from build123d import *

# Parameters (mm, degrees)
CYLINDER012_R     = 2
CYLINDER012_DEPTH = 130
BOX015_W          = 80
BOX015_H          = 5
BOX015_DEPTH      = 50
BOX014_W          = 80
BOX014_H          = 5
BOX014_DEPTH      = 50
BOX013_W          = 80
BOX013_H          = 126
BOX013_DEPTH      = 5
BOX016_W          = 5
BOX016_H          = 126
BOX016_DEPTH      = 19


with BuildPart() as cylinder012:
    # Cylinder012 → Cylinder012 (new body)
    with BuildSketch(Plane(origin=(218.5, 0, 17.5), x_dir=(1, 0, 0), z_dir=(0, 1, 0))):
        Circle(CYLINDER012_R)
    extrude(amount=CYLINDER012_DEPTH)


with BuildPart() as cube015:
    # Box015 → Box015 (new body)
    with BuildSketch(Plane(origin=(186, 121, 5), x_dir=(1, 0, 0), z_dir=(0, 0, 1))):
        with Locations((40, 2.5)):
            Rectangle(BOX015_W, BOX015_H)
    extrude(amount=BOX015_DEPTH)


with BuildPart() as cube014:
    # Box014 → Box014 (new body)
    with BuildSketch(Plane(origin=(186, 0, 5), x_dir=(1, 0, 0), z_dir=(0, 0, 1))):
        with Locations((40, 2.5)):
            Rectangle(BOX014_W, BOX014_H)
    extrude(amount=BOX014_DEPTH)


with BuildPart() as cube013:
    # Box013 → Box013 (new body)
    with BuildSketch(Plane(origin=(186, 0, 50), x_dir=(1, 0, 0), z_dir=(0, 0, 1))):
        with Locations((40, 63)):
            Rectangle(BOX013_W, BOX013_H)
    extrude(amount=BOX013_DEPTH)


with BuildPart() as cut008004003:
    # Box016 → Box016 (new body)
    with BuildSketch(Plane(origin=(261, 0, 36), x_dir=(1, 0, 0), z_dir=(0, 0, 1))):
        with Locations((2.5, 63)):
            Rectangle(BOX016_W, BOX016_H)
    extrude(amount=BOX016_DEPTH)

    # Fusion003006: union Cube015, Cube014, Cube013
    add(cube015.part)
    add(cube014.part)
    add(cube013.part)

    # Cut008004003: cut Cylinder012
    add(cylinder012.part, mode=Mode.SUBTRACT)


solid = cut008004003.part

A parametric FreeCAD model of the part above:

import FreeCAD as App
import Part
import Sketcher
Q = App.Units.Quantity


def add_polygon(sketch, points):
    """Adds a closed chain of lines whose ends are joined by coincident constraints."""
    first, n = sketch.GeometryCount, len(points)
    for a, b in zip(points, points[1:] + points[:1]):
        sketch.addGeometry(Part.LineSegment(App.Vector(*a, 0), App.Vector(*b, 0)), False)
    for i in range(n):
        sketch.addConstraint(Sketcher.Constraint("Coincident", first + i, 2, first + (i + 1) % n, 1))

doc = App.newDocument("Part")
body = doc.addObject("PartDesign::Body", "Body")

sketch1 = body.newObject("Sketcher::SketchObject", "Sketch")
sketch1.AttachmentSupport = (doc.getObject("XZ_Plane"), [""])
sketch1.MapMode = "FlatFace"
sketch1.addGeometry(Part.Circle(App.Vector(218.5, 17.5, 0), App.Vector(0, 0, 1), 2), False)
sketch1.addConstraint(Sketcher.Constraint("Diameter", 0, Q("4 mm")))
sketch1.addConstraint(Sketcher.Constraint("DistanceX", -1, 1, 0, 3, Q("218.5 mm")))
sketch1.addConstraint(Sketcher.Constraint("DistanceY", -1, 1, 0, 3, Q("17.5 mm")))
pad1 = body.newObject("PartDesign::Pad", "Pad")
pad1.Profile = sketch1
pad1.Length = 130
pad1.Reversed = True
body2 = doc.addObject("PartDesign::Body", "Body001")

sketch2 = body2.newObject("Sketcher::SketchObject", "Sketch001")
sketch2.AttachmentSupport = (doc.getObject("XY_Plane001"), [""])
sketch2.MapMode = "FlatFace"
sketch2.AttachmentOffset = App.Placement(App.Vector(0, 0, 5), App.Rotation())
add_polygon(sketch2, [(186, 126), (186, 121), (266, 121), (266, 126)])
sketch2.addConstraint(Sketcher.Constraint("Vertical", 0))
sketch2.addConstraint(Sketcher.Constraint("Horizontal", 1))
sketch2.addConstraint(Sketcher.Constraint("Vertical", 2))
sketch2.addConstraint(Sketcher.Constraint("Horizontal", 3))
sketch2.addConstraint(Sketcher.Constraint("DistanceX", 1, 1, 1, 2, Q("80 mm")))
sketch2.addConstraint(Sketcher.Constraint("DistanceY", 0, 2, 0, 1, Q("5 mm")))
sketch2.addConstraint(Sketcher.Constraint("DistanceX", -1, 1, 0, 2, Q("186 mm")))
sketch2.addConstraint(Sketcher.Constraint("DistanceY", -1, 1, 0, 2, Q("121 mm")))
pad2 = body2.newObject("PartDesign::Pad", "Pad001")
pad2.Profile = sketch2
pad2.Length = 50
body3 = doc.addObject("PartDesign::Body", "Body002")

sketch3 = body3.newObject("Sketcher::SketchObject", "Sketch002")
sketch3.AttachmentSupport = (doc.getObject("XY_Plane002"), [""])
sketch3.MapMode = "FlatFace"
sketch3.AttachmentOffset = App.Placement(App.Vector(0, 0, 5), App.Rotation())
add_polygon(sketch3, [(186, 5), (186, 0), (266, 0), (266, 5)])
sketch3.addConstraint(Sketcher.Constraint("Vertical", 0))
sketch3.addConstraint(Sketcher.Constraint("Horizontal", 1))
sketch3.addConstraint(Sketcher.Constraint("Vertical", 2))
sketch3.addConstraint(Sketcher.Constraint("Horizontal", 3))
sketch3.addConstraint(Sketcher.Constraint("PointOnObject", 0, 2, -1))
sketch3.addConstraint(Sketcher.Constraint("DistanceX", 1, 1, 1, 2, Q("80 mm")))
sketch3.addConstraint(Sketcher.Constraint("DistanceY", 0, 2, 0, 1, Q("5 mm")))
sketch3.addConstraint(Sketcher.Constraint("DistanceX", -1, 1, 0, 2, Q("186 mm")))
pad3 = body3.newObject("PartDesign::Pad", "Pad002")
pad3.Profile = sketch3
pad3.Length = 50
body4 = doc.addObject("PartDesign::Body", "Body003")

sketch4 = body4.newObject("Sketcher::SketchObject", "Sketch003")
sketch4.AttachmentSupport = (doc.getObject("XY_Plane003"), [""])
sketch4.MapMode = "FlatFace"
sketch4.AttachmentOffset = App.Placement(App.Vector(0, 0, 50), App.Rotation())
add_polygon(sketch4, [(186, 126), (186, 0), (266, 0), (266, 126)])
sketch4.addConstraint(Sketcher.Constraint("Vertical", 0))
sketch4.addConstraint(Sketcher.Constraint("Horizontal", 1))
sketch4.addConstraint(Sketcher.Constraint("Vertical", 2))
sketch4.addConstraint(Sketcher.Constraint("Horizontal", 3))
sketch4.addConstraint(Sketcher.Constraint("PointOnObject", 0, 2, -1))
sketch4.addConstraint(Sketcher.Constraint("DistanceX", 1, 1, 1, 2, Q("80 mm")))
sketch4.addConstraint(Sketcher.Constraint("DistanceY", 0, 2, 0, 1, Q("126 mm")))
sketch4.addConstraint(Sketcher.Constraint("DistanceX", -1, 1, 0, 2, Q("186 mm")))
pad4 = body4.newObject("PartDesign::Pad", "Pad003")
pad4.Profile = sketch4
pad4.Length = 5
body5 = doc.addObject("PartDesign::Body", "Body004")

sketch5 = body5.newObject("Sketcher::SketchObject", "Sketch004")
sketch5.AttachmentSupport = (doc.getObject("XY_Plane004"), [""])
sketch5.MapMode = "FlatFace"
sketch5.AttachmentOffset = App.Placement(App.Vector(0, 0, 36), App.Rotation())
add_polygon(sketch5, [(261, 126), (261, 0), (266, 0), (266, 126)])
sketch5.addConstraint(Sketcher.Constraint("Vertical", 0))
sketch5.addConstraint(Sketcher.Constraint("Horizontal", 1))
sketch5.addConstraint(Sketcher.Constraint("Vertical", 2))
sketch5.addConstraint(Sketcher.Constraint("Horizontal", 3))
sketch5.addConstraint(Sketcher.Constraint("PointOnObject", 0, 2, -1))
sketch5.addConstraint(Sketcher.Constraint("DistanceX", 1, 1, 1, 2, Q("5 mm")))
sketch5.addConstraint(Sketcher.Constraint("DistanceY", 0, 2, 0, 1, Q("126 mm")))
sketch5.addConstraint(Sketcher.Constraint("DistanceX", -1, 1, 0, 2, Q("261 mm")))
pad5 = body5.newObject("PartDesign::Pad", "Pad004")
pad5.Profile = sketch5
pad5.Length = 19
doc.recompute()

boolean = body5.newObject("PartDesign::Boolean", "Boolean")
boolean.Type = "Fuse"
boolean.addObjects([body2])
doc.recompute()

boolean2 = body5.newObject("PartDesign::Boolean", "Boolean001")
boolean2.Type = "Fuse"
boolean2.addObjects([body3])
doc.recompute()

boolean3 = body5.newObject("PartDesign::Boolean", "Boolean002")
boolean3.Type = "Fuse"
boolean3.addObjects([body4])
doc.recompute()

boolean4 = body5.newObject("PartDesign::Boolean", "Boolean003")
boolean4.Type = "Cut"
boolean4.addObjects([body])

doc.recompute()
